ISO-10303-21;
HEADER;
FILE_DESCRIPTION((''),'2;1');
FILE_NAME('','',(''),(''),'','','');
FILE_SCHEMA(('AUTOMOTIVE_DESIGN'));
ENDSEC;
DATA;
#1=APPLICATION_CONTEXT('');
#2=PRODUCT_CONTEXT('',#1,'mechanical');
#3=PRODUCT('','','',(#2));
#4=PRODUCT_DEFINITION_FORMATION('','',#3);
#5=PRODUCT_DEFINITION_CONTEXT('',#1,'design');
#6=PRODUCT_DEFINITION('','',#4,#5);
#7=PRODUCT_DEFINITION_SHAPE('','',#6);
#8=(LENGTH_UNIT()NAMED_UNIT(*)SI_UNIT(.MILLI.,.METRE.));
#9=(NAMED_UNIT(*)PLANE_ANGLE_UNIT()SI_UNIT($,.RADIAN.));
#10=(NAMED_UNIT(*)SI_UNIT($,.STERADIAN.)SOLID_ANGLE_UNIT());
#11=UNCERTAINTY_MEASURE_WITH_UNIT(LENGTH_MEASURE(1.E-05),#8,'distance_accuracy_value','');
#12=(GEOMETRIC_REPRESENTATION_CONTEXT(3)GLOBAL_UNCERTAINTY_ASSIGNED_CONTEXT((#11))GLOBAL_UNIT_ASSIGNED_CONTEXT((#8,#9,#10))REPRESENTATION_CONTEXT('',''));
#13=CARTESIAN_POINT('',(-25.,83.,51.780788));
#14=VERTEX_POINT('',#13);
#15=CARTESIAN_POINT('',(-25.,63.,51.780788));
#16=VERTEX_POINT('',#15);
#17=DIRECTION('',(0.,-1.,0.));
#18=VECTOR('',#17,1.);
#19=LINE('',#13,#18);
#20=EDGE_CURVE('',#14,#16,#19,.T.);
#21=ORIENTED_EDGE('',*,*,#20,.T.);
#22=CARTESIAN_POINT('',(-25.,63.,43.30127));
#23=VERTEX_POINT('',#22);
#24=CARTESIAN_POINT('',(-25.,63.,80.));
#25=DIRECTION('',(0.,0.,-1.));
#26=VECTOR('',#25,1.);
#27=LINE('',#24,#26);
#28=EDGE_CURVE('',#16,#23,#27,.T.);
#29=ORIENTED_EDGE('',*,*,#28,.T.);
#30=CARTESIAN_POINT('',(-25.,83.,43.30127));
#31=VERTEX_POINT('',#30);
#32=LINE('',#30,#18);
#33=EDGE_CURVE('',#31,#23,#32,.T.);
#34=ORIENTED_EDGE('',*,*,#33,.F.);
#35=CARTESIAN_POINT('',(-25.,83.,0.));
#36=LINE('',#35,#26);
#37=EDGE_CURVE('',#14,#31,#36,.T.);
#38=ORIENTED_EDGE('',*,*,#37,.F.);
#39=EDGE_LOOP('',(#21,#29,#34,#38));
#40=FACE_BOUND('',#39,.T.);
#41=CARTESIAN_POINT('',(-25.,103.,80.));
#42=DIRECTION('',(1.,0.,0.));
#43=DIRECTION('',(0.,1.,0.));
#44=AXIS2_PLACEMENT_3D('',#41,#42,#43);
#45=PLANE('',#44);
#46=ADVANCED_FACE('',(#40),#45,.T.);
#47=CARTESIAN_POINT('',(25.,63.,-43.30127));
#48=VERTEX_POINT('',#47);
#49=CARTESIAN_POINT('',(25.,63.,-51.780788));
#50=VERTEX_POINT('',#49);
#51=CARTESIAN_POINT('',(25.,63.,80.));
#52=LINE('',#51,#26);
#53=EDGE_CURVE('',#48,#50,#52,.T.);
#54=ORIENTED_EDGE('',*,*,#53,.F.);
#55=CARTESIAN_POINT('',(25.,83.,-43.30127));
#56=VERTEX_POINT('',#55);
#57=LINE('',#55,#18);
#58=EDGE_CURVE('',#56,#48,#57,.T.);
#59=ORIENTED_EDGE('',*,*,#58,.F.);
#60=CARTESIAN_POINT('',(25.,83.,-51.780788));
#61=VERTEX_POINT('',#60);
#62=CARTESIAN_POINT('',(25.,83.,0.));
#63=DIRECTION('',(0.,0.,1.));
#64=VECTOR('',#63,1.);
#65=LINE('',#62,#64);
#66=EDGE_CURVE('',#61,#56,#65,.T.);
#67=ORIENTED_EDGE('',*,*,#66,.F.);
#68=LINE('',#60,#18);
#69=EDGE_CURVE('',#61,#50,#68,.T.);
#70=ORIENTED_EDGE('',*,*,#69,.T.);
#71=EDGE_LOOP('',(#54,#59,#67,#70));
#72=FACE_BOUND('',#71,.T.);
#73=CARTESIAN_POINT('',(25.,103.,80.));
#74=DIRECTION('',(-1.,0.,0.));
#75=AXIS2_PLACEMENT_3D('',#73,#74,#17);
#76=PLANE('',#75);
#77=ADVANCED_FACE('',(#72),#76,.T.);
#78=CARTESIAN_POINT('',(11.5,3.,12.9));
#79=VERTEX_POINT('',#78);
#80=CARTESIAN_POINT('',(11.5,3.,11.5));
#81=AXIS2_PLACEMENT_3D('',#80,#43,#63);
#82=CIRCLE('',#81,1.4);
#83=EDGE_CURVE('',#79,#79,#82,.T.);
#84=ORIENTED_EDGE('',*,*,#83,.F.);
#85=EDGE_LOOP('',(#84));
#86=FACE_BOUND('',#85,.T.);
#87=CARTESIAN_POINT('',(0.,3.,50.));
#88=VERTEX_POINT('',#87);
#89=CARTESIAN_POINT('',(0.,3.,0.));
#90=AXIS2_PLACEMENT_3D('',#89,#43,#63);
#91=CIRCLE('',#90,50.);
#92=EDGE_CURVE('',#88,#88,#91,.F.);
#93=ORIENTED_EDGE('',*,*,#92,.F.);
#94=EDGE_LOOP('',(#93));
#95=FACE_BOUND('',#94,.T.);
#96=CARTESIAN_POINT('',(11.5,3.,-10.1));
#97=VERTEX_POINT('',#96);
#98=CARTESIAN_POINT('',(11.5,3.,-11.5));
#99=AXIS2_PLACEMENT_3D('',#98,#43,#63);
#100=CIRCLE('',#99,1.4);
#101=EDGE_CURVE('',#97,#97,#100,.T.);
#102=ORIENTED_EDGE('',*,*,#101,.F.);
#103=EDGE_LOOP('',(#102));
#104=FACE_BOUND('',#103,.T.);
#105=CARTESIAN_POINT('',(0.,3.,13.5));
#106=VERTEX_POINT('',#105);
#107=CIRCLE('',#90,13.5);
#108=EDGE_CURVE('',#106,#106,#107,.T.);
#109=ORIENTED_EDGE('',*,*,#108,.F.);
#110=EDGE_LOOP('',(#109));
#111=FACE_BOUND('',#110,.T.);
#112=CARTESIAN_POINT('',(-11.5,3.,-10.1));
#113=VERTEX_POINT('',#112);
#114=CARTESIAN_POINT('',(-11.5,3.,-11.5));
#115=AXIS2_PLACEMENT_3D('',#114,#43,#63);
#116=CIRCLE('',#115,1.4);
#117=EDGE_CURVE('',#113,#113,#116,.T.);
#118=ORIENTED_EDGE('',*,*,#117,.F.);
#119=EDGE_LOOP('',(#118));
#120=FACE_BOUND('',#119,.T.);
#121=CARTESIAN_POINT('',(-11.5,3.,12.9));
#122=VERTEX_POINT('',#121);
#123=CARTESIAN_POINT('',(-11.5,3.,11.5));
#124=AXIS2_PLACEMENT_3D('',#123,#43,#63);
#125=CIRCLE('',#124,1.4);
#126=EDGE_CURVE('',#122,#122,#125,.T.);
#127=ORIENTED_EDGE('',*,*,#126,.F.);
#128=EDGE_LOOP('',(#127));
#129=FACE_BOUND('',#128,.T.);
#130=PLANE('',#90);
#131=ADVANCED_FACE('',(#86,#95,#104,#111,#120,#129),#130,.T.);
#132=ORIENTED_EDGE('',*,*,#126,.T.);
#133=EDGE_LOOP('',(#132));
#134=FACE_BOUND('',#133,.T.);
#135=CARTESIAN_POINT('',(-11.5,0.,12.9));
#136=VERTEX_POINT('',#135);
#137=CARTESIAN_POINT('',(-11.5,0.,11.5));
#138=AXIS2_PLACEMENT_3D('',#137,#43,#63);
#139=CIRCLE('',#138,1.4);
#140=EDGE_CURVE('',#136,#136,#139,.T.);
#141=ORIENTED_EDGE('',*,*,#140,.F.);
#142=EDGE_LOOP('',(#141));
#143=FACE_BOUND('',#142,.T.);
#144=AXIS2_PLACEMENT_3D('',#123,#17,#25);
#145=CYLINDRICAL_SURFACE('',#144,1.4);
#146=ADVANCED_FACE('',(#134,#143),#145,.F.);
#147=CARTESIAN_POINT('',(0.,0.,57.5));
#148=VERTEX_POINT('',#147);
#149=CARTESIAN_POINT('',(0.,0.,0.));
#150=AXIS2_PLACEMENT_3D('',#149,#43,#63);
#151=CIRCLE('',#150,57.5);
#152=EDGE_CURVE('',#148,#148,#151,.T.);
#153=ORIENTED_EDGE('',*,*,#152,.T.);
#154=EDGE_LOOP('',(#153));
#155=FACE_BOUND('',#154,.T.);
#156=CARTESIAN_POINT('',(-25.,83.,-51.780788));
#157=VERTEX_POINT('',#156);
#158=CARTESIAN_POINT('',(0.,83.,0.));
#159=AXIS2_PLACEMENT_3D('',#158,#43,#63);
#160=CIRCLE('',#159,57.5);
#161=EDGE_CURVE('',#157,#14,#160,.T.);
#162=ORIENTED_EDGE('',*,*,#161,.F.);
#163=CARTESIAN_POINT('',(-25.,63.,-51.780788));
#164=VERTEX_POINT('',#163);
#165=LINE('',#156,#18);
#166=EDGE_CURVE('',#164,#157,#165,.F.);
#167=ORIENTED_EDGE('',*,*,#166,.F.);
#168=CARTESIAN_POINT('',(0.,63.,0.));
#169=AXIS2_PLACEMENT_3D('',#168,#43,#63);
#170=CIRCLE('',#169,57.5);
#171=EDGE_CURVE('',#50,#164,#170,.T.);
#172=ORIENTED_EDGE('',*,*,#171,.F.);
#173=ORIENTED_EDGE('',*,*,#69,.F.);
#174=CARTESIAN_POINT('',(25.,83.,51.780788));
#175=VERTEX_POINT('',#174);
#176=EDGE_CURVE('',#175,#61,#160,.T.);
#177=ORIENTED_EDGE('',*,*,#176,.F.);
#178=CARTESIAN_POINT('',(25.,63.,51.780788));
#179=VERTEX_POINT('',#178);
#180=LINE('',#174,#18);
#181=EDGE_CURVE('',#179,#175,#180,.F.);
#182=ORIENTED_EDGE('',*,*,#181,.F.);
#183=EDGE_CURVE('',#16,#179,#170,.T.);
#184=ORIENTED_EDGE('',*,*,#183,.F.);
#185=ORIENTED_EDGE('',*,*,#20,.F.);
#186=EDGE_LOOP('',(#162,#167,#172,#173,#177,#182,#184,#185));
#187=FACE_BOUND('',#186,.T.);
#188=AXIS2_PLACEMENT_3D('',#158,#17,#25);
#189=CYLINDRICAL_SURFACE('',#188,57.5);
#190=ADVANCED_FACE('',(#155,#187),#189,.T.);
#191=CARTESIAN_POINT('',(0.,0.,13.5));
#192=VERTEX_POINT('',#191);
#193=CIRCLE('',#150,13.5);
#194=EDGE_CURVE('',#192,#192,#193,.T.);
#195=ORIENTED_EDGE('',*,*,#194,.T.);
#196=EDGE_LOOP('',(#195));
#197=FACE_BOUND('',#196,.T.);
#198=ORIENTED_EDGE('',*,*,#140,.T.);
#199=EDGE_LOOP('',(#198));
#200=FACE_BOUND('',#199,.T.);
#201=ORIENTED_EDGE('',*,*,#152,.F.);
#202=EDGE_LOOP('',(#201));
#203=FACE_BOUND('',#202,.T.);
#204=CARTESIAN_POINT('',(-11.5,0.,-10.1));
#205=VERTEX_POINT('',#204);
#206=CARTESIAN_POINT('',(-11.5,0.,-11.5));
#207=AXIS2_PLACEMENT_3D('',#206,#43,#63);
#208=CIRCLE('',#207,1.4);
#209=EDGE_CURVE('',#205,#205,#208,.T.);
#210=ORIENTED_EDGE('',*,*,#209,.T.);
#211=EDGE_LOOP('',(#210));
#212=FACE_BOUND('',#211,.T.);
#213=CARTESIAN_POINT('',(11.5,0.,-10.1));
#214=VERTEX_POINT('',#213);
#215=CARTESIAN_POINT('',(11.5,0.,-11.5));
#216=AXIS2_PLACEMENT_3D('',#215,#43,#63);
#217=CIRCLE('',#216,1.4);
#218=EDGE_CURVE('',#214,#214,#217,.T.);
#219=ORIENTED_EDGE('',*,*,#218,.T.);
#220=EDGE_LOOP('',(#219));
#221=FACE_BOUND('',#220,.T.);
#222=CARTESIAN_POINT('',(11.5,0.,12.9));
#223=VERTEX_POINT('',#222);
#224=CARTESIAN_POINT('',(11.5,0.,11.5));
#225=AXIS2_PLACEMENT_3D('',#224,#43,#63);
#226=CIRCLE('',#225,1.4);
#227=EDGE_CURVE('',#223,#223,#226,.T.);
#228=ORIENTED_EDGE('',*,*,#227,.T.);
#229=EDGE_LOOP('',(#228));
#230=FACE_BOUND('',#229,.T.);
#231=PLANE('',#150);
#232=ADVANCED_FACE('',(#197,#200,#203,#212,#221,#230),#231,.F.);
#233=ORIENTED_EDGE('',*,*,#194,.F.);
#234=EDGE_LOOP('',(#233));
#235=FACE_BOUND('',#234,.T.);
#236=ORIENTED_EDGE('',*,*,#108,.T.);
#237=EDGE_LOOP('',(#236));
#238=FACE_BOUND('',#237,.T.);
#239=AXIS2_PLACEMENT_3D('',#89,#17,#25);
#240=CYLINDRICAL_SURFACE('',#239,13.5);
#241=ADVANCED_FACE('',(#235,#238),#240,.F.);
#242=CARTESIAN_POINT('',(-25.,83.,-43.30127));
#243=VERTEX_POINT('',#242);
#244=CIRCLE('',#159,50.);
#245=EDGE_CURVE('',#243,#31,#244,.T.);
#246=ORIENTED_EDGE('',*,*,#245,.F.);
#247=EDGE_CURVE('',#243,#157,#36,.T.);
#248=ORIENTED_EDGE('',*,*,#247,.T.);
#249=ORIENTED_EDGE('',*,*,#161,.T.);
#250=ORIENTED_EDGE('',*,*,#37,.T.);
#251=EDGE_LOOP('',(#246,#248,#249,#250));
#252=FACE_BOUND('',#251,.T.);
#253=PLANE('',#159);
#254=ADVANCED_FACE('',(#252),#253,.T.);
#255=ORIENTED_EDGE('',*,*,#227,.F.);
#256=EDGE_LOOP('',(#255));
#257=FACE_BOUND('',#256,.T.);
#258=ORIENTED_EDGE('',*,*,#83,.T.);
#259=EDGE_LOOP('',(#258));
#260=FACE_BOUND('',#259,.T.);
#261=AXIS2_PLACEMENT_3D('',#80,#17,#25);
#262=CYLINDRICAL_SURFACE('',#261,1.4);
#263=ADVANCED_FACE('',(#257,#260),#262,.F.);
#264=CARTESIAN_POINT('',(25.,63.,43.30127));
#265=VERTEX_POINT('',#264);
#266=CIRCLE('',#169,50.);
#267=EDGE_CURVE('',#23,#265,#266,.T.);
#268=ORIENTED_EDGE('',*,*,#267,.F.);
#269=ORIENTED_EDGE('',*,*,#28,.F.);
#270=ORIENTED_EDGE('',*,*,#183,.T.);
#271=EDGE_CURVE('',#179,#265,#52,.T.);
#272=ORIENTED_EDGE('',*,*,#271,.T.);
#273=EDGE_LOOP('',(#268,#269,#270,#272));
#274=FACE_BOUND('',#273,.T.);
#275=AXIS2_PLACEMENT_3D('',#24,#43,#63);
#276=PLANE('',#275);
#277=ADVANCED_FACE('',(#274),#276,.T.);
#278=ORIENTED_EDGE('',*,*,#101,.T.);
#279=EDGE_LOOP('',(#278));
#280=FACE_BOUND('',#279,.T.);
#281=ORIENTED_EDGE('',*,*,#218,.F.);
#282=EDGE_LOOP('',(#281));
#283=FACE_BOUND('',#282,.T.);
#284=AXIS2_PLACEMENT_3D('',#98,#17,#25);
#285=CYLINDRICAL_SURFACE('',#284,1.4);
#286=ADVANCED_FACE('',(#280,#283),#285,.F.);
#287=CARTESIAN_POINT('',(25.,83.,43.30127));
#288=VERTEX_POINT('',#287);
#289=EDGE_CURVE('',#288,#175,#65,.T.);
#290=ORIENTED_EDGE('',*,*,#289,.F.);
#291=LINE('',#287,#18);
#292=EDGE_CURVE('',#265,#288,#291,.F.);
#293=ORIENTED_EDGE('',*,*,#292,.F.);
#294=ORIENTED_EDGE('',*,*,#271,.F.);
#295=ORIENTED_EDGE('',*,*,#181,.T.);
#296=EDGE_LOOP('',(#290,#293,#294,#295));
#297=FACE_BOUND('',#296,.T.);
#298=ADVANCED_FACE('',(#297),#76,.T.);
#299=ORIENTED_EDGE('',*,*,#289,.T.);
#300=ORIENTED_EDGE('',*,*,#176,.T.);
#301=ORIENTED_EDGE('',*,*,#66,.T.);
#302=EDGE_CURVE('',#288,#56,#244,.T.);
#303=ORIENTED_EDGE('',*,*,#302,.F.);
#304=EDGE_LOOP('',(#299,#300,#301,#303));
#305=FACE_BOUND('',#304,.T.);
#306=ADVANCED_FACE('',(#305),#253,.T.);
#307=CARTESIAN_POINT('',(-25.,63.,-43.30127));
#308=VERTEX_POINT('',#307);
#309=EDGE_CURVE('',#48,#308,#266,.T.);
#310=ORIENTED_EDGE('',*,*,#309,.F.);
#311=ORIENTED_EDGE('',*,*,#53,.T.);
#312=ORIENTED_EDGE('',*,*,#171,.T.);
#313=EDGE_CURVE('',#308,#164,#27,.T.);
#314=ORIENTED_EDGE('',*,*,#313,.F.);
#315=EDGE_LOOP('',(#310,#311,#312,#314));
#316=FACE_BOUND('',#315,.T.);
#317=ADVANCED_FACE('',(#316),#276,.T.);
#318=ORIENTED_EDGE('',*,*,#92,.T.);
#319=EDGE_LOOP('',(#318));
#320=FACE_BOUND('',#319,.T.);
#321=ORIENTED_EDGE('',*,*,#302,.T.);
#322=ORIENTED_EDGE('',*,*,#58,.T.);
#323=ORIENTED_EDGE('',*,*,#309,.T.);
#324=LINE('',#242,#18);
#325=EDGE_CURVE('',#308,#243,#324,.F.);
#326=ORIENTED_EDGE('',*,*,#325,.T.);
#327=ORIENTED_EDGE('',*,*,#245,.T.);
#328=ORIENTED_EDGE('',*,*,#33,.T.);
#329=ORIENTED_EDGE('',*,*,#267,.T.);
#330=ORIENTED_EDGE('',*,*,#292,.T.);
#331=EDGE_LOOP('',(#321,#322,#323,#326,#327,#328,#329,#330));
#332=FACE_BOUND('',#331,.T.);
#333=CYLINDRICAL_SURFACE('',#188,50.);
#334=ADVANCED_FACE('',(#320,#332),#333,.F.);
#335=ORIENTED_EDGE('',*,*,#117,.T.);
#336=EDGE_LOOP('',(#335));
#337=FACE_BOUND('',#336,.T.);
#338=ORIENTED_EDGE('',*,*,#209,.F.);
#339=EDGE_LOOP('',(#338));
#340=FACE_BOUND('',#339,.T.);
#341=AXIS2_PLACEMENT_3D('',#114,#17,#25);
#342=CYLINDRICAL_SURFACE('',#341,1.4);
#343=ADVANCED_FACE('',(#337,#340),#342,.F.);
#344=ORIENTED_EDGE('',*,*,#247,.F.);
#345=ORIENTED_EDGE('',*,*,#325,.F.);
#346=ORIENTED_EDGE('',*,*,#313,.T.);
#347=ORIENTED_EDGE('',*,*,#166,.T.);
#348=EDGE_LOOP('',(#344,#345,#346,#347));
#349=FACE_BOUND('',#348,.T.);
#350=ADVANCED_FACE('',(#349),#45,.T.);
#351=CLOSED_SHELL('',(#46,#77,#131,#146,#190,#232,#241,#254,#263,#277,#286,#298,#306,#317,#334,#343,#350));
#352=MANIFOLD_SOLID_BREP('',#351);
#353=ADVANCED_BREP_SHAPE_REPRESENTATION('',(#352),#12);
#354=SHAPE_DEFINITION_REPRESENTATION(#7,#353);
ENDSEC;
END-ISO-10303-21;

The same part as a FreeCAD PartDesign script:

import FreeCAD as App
import Part
import Sketcher
from FreeCAD import Vector

doc = App.newDocument("Part")
body = doc.addObject("PartDesign::Body", "Body")

sketch1 = doc.addObject("Sketcher::SketchObject", "Sketch")
body.addObject(sketch1)
sketch1.AttachmentSupport = (doc.XZ_Plane, [""])
sketch1.MapMode = "FlatFace"
sketch1.addGeometry(Part.Circle(Vector(0, 0, 0), Vector(0, 0, 1), 75), False)
sketch1.addGeometry(Part.Circle(Vector(-11.5, -11.5, 0), Vector(0, 0, 1), 1.4), False)
sketch1.addGeometry(Part.Circle(Vector(-11.5, 11.5, 0), Vector(0, 0, 1), 1.4), False)
sketch1.addGeometry(Part.Circle(Vector(11.5, -11.5, 0), Vector(0, 0, 1), 1.4), False)
sketch1.addGeometry(Part.Circle(Vector(0, 0, 0), Vector(0, 0, 1), 13.5), False)
sketch1.addGeometry(Part.Circle(Vector(11.5, 11.5, 0), Vector(0, 0, 1), 1.4), False)
sketch1.addConstraint(Sketcher.Constraint("Coincident", 0, 3, -1, 1))
sketch1.addConstraint(Sketcher.Constraint("Coincident", 4, 3, -1, 1))
sketch1.addConstraint(Sketcher.Constraint("Equal", 1, 2))
sketch1.addConstraint(Sketcher.Constraint("Equal", 2, 3))
sketch1.addConstraint(Sketcher.Constraint("Equal", 3, 5))
sketch1.addConstraint(Sketcher.Constraint("Symmetric", 2, 3, 3, 3, -1, 1))
sketch1.addConstraint(Sketcher.Constraint("Symmetric", 1, 3, 5, 3, -1, 1))
sketch1.addConstraint(Sketcher.Constraint("Symmetric", 1, 3, 3, 3, -2))
sketch1.addConstraint(Sketcher.Constraint("Diameter", 0, 150.0))
sketch1.addConstraint(Sketcher.Constraint("Diameter", 4, 27.0))
sketch1.addConstraint(Sketcher.Constraint("Diameter", 1, 2.8))
sketch1.addConstraint(Sketcher.Constraint("DistanceY", 1, 3, 2, 3, 23.0))
sketch1.addConstraint(Sketcher.Constraint("DistanceX", 1, 3, 3, 3, 23.0))
pad1 = doc.addObject("PartDesign::Pad", "Pad")
body.addObject(pad1)
pad1.Profile = sketch1
pad1.Length = 3
pad1.Reversed = True

sketch2 = doc.addObject("Sketcher::SketchObject", "Sketch001")
body.addObject(sketch2)
sketch2.AttachmentSupport = (doc.XZ_Plane, [""])
sketch2.MapMode = "FlatFace"
sketch2.AttachmentOffset = App.Placement(Vector(0, 0, -3), App.Rotation())
sketch2.addGeometry(Part.Circle(Vector(0, 0, 0), Vector(0, 0, 1), 58), False)
sketch2.addGeometry(Part.Circle(Vector(0, 0, 0), Vector(0, 0, 1), 50), False)
sketch2.addConstraint(Sketcher.Constraint("Coincident", 0, 3, -1, 1))
sketch2.addConstraint(Sketcher.Constraint("Coincident", 1, 3, -1, 1))
sketch2.addConstraint(Sketcher.Constraint("Diameter", 0, 115.0))
sketch2.addConstraint(Sketcher.Constraint("Diameter", 1, 100.0))
pad2 = doc.addObject("PartDesign::Pad", "Pad001")
body.addObject(pad2)
pad2.Profile = sketch2
pad2.Length = 80
pad2.Reversed = True

sketch3 = doc.addObject("Sketcher::SketchObject", "Sketch002")
body.addObject(sketch3)
sketch3.AttachmentSupport = (doc.XY_Plane, [""])
sketch3.MapMode = "FlatFace"
sketch3.addGeometry(Part.LineSegment(Vector(-25, 103, 0), Vector(-25, 63, 0)), False)
sketch3.addGeometry(Part.LineSegment(Vector(-25, 63, 0), Vector(25, 63, 0)), False)
sketch3.addGeometry(Part.LineSegment(Vector(25, 63, 0), Vector(25, 103, 0)), False)
sketch3.addGeometry(Part.LineSegment(Vector(25, 103, 0), Vector(-25, 103, 0)), False)
sketch3.addConstraint(Sketcher.Constraint("Coincident", 0, 2, 1, 1))
sketch3.addConstraint(Sketcher.Constraint("Coincident", 1, 2, 2, 1))
sketch3.addConstraint(Sketcher.Constraint("Coincident", 2, 2, 3, 1))
sketch3.addConstraint(Sketcher.Constraint("Coincident", 3, 2, 0, 1))
sketch3.addConstraint(Sketcher.Constraint("Vertical", 0))
sketch3.addConstraint(Sketcher.Constraint("Horizontal", 1))
sketch3.addConstraint(Sketcher.Constraint("Vertical", 2))
sketch3.addConstraint(Sketcher.Constraint("Horizontal", 3))
sketch3.addConstraint(Sketcher.Constraint("DistanceX", 1, 1, 1, 2, 50.0))
sketch3.addConstraint(Sketcher.Constraint("DistanceY", 0, 2, 0, 1, 40.0))
sketch3.addConstraint(Sketcher.Constraint("DistanceX", 0, 2, -1, 1, 25.0))
sketch3.addConstraint(Sketcher.Constraint("DistanceY", -1, 1, 0, 2, 63.0))
pocket1 = doc.addObject("PartDesign::Pocket", "Pocket")
body.addObject(pocket1)
pocket1.Profile = sketch3
pocket1.Type = "ThroughAll"
pocket1.Midplane = True

sketch4 = doc.addObject("Sketcher::SketchObject", "Sketch003")
body.addObject(sketch4)
sketch4.AttachmentSupport = (doc.XZ_Plane, [""])
sketch4.MapMode = "FlatFace"
sketch4.AttachmentOffset = App.Placement(Vector(0, 0, 77), App.Rotation())
sketch4.addGeometry(Part.Circle(Vector(0, 0, 0), Vector(0, 0, 1), 75), False)
sketch4.addGeometry(Part.Circle(Vector(0, 0, 0), Vector(0, 0, 1), 58), False)
sketch4.addConstraint(Sketcher.Constraint("Coincident", 0, 3, -1, 1))
sketch4.addConstraint(Sketcher.Constraint("Coincident", 1, 3, -1, 1))
sketch4.addConstraint(Sketcher.Constraint("Diameter", 0, 150.0))
sketch4.addConstraint(Sketcher.Constraint("Diameter", 1, 115.0))
pocket2 = doc.addObject("PartDesign::Pocket", "Pocket001")
body.addObject(pocket2)
pocket2.Profile = sketch4
pocket2.Length = 80

doc.recompute()
